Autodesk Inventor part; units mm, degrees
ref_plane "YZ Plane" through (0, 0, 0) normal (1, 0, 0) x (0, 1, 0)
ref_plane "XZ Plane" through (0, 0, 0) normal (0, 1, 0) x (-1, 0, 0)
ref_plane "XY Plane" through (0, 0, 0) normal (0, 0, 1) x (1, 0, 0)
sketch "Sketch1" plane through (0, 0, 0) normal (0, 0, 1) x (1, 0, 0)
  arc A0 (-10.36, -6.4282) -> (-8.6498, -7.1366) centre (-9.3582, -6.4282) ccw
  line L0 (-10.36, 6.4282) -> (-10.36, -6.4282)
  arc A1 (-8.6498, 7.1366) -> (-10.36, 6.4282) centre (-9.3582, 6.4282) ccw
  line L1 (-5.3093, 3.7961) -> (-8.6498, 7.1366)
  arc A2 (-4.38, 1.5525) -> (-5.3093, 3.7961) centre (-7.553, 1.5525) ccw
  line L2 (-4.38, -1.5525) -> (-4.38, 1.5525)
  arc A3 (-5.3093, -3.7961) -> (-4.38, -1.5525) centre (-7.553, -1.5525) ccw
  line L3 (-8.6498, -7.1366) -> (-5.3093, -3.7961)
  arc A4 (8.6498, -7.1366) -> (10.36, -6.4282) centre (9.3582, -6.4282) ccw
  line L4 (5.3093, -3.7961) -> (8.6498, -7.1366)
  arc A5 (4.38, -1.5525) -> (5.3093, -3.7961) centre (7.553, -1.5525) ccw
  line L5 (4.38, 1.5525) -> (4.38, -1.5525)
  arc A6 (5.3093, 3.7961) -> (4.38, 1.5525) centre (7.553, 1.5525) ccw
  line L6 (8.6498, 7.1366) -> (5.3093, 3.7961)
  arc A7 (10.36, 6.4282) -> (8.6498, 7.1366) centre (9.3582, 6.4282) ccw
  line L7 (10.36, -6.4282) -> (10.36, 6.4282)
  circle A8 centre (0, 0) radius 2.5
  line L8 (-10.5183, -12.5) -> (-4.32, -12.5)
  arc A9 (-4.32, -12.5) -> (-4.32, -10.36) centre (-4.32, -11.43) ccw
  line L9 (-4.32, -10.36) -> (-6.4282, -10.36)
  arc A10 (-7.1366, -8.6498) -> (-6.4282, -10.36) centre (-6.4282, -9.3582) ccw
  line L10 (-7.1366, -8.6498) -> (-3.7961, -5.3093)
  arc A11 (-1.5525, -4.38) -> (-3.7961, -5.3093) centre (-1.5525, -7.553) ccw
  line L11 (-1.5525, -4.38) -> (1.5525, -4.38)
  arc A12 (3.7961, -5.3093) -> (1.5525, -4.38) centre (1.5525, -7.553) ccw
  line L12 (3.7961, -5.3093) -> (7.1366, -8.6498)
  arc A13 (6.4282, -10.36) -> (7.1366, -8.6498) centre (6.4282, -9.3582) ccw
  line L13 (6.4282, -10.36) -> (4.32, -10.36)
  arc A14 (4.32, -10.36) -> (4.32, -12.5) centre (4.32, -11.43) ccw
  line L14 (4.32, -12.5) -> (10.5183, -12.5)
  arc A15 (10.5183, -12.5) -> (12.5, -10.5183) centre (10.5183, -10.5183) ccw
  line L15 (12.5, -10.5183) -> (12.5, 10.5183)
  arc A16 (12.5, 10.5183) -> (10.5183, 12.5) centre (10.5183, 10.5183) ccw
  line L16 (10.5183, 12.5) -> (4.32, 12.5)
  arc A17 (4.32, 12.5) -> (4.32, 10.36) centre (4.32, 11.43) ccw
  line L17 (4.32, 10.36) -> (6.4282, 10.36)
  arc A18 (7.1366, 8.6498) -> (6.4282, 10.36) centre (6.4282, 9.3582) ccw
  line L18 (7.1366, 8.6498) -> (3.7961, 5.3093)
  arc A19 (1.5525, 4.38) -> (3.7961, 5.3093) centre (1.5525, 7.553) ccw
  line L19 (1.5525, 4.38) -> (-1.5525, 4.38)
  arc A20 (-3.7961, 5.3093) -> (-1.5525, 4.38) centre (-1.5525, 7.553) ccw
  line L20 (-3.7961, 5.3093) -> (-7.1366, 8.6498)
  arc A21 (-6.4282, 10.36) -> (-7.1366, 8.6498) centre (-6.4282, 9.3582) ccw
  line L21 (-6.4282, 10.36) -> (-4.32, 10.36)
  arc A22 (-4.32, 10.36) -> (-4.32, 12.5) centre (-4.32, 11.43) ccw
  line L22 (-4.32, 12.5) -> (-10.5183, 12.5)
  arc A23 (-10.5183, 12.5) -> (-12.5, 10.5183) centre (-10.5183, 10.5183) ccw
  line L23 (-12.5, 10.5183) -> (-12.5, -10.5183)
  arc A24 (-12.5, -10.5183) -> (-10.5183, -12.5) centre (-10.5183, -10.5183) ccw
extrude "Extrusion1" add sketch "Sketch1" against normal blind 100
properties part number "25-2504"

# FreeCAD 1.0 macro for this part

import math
import FreeCAD as App
import Part
import Sketcher
from FreeCAD import Vector
Q = App.Units.Quantity

doc = App.newDocument("Part")
params = doc.addObject("Spreadsheet::Sheet", "Params")
for row, (alias, value) in enumerate([
    ("sketch1_width", "0.083 in"),
    ("sketch1_length", "0.186 in"),
    ("pad1_length", "3.9370079 in"),
], start=1):
    params.set(f"A{row}", alias)
    params.set(f"B{row}", "=" + value)
    params.setAlias(f"B{row}", alias)

body = doc.addObject("PartDesign::Body", "Body")

# Sketch on XY plane
sketch1 = body.newObject("Sketcher::SketchObject", "Sketch")
sketch1.AttachmentSupport = (doc.getObject("XY_Plane"), [""])
sketch1.MapMode = "FlatFace"
sketch1.addGeometry([
    Part.ArcOfCircle(Part.Circle(Vector(-10.5183, -10.5183, 0), Vector(0, 0, 1), 1.9817), math.radians(180), math.radians(270)),  # 0
    Part.LineSegment(Vector(-10.5183, -12.5, 0), Vector(-4.32, -12.5, 0)),  # 1
    Part.ArcOfCircle(Part.Circle(Vector(-4.32, -11.43, 0), Vector(0, 0, 1), 1.07), math.radians(-90), math.radians(90)),  # 2
    Part.LineSegment(Vector(-4.32, -10.36, 0), Vector(-6.4282, -10.36, 0)),  # 3
    Part.ArcOfCircle(Part.Circle(Vector(-6.4282, -9.3582, 0), Vector(0, 0, 1), 1.001829), math.radians(135), math.radians(270)),  # 4
    Part.LineSegment(Vector(-7.1366, -8.6498, 0), Vector(-3.7961, -5.3093, 0)),  # 5
    Part.ArcOfCircle(Part.Circle(Vector(-1.5525, -7.553, 0), Vector(0, 0, 1), 3.173), math.radians(90), math.radians(134.998723)),  # 6
    Part.LineSegment(Vector(-1.5525, -4.38, 0), Vector(1.5525, -4.38, 0)),  # 7
    Part.ArcOfCircle(Part.Circle(Vector(1.5525, -7.553, 0), Vector(0, 0, 1), 3.173), math.radians(45.001277), math.radians(90)),  # 8
    Part.LineSegment(Vector(3.7961, -5.3093, 0), Vector(7.1366, -8.6498, 0)),  # 9
    Part.ArcOfCircle(Part.Circle(Vector(6.4282, -9.3582, 0), Vector(0, 0, 1), 1.0018), math.radians(-90), math.radians(45)),  # 10
    Part.LineSegment(Vector(6.4282, -10.36, 0), Vector(4.32, -10.36, 0)),  # 11
    Part.ArcOfCircle(Part.Circle(Vector(4.32, -11.43, 0), Vector(0, 0, 1), 1.07), math.radians(90), math.radians(270)),  # 12
    Part.LineSegment(Vector(4.32, -12.5, 0), Vector(10.5183, -12.5, 0)),  # 13
    Part.ArcOfCircle(Part.Circle(Vector(10.5183, -10.5183, 0), Vector(0, 0, 1), 1.9817), math.radians(-90), math.radians(0)),  # 14
    Part.LineSegment(Vector(12.5, -10.5183, 0), Vector(12.5, 10.5183, 0)),  # 15
    Part.ArcOfCircle(Part.Circle(Vector(10.5183, 10.5183, 0), Vector(0, 0, 1), 1.9817), math.radians(0), math.radians(90)),  # 16
    Part.LineSegment(Vector(10.5183, 12.5, 0), Vector(4.32, 12.5, 0)),  # 17
    Part.ArcOfCircle(Part.Circle(Vector(4.32, 11.43, 0), Vector(0, 0, 1), 1.07), math.radians(90), math.radians(270)),  # 18
    Part.LineSegment(Vector(4.32, 10.36, 0), Vector(6.4282, 10.36, 0)),  # 19
    Part.ArcOfCircle(Part.Circle(Vector(6.4282, 9.3582, 0), Vector(0, 0, 1), 1.001829), math.radians(-45), math.radians(90)),  # 20
    Part.LineSegment(Vector(7.1366, 8.6498, 0), Vector(3.7961, 5.3093, 0)),  # 21
    Part.ArcOfCircle(Part.Circle(Vector(1.5525, 7.553, 0), Vector(0, 0, 1), 3.173), math.radians(-90), math.radians(-45.001277)),  # 22
    Part.LineSegment(Vector(1.5525, 4.38, 0), Vector(-1.5525, 4.38, 0)),  # 23
    Part.ArcOfCircle(Part.Circle(Vector(-1.5525, 7.553, 0), Vector(0, 0, 1), 3.173), math.radians(-134.998723), math.radians(-90)),  # 24
    Part.LineSegment(Vector(-3.7961, 5.3093, 0), Vector(-7.1366, 8.6498, 0)),  # 25
    Part.ArcOfCircle(Part.Circle(Vector(-6.4282, 9.3582, 0), Vector(0, 0, 1), 1.0018), math.radians(90), math.radians(225)),  # 26
    Part.LineSegment(Vector(-6.4282, 10.36, 0), Vector(-4.32, 10.36, 0)),  # 27
    Part.ArcOfCircle(Part.Circle(Vector(-4.32, 11.43, 0), Vector(0, 0, 1), 1.07), math.radians(-90), math.radians(90)),  # 28
    Part.LineSegment(Vector(-4.32, 12.5, 0), Vector(-10.5183, 12.5, 0)),  # 29
    Part.ArcOfCircle(Part.Circle(Vector(-10.5183, 10.5183, 0), Vector(0, 0, 1), 1.9817), math.radians(90), math.radians(180)),  # 30
    Part.LineSegment(Vector(-12.5, 10.5183, 0), Vector(-12.5, -10.5183, 0)),  # 31
    Part.ArcOfCircle(Part.Circle(Vector(9.3582, -6.4282, 0), Vector(0, 0, 1), 1.001829), math.radians(-135), math.radians(0)),  # 32
    Part.LineSegment(Vector(8.6498, -7.1366, 0), Vector(5.3093, -3.7961, 0)),  # 33
    Part.ArcOfCircle(Part.Circle(Vector(7.553, -1.5525, 0), Vector(0, 0, 1), 3.173), math.radians(180), math.radians(224.998723)),  # 34
    Part.LineSegment(Vector(4.38, -1.5525, 0), Vector(4.38, 1.5525, 0)),  # 35
    Part.ArcOfCircle(Part.Circle(Vector(7.553, 1.5525, 0), Vector(0, 0, 1), 3.173), math.radians(135.001277), math.radians(180)),  # 36
    Part.LineSegment(Vector(5.3093, 3.7961, 0), Vector(8.6498, 7.1366, 0)),  # 37
    Part.ArcOfCircle(Part.Circle(Vector(9.3582, 6.4282, 0), Vector(0, 0, 1), 1.0018), math.radians(0), math.radians(135)),  # 38
    Part.LineSegment(Vector(10.36, 6.4282, 0), Vector(10.36, -6.4282, 0)),  # 39
    Part.ArcOfCircle(Part.Circle(Vector(-9.3582, -6.4282, 0), Vector(0, 0, 1), 1.0018), math.radians(180), math.radians(315)),  # 40
    Part.LineSegment(Vector(-10.36, -6.4282, 0), Vector(-10.36, 6.4282, 0)),  # 41
    Part.ArcOfCircle(Part.Circle(Vector(-9.3582, 6.4282, 0), Vector(0, 0, 1), 1.001829), math.radians(45), math.radians(180)),  # 42
    Part.LineSegment(Vector(-8.6498, 7.1366, 0), Vector(-5.3093, 3.7961, 0)),  # 43
    Part.ArcOfCircle(Part.Circle(Vector(-7.553, 1.5525, 0), Vector(0, 0, 1), 3.173), math.radians(0), math.radians(44.998723)),  # 44
    Part.LineSegment(Vector(-4.38, 1.5525, 0), Vector(-4.38, -1.5525, 0)),  # 45
    Part.ArcOfCircle(Part.Circle(Vector(-7.553, -1.5525, 0), Vector(0, 0, 1), 3.173), math.radians(-44.998723), math.radians(0)),  # 46
    Part.LineSegment(Vector(-5.3093, -3.7961, 0), Vector(-8.6498, -7.1366, 0)),  # 47
    Part.Circle(Vector(0, 0, 0), Vector(0, 0, 1), 2.5),  # 48
], False)
sketch1.addConstraint([
    Sketcher.Constraint("Tangent", 0, 2, 1, 1),
    Sketcher.Constraint("Tangent", 1, 2, 2, 1),
    Sketcher.Constraint("Tangent", 2, 2, 3, 1),
    Sketcher.Constraint("Tangent", 3, 2, 4, 2),
    Sketcher.Constraint("Tangent", 4, 1, 5, 1),
    Sketcher.Constraint("Tangent", 5, 2, 6, 2),
    Sketcher.Constraint("Tangent", 6, 1, 7, 1),
    Sketcher.Constraint("Tangent", 7, 2, 8, 2),
    Sketcher.Constraint("Tangent", 8, 1, 9, 1),
    Sketcher.Constraint("Tangent", 9, 2, 10, 2),
    Sketcher.Constraint("Tangent", 10, 1, 11, 1),
    Sketcher.Constraint("Tangent", 11, 2, 12, 1),
    Sketcher.Constraint("Tangent", 12, 2, 13, 1),
    Sketcher.Constraint("Tangent", 13, 2, 14, 1),
    Sketcher.Constraint("Tangent", 14, 2, 15, 1),
    Sketcher.Constraint("Tangent", 15, 2, 16, 1),
    Sketcher.Constraint("Tangent", 16, 2, 17, 1),
    Sketcher.Constraint("Tangent", 17, 2, 18, 1),
    Sketcher.Constraint("Tangent", 18, 2, 19, 1),
    Sketcher.Constraint("Tangent", 19, 2, 20, 2),
    Sketcher.Constraint("Tangent", 20, 1, 21, 1),
    Sketcher.Constraint("Tangent", 21, 2, 22, 2),
    Sketcher.Constraint("Tangent", 22, 1, 23, 1),
    Sketcher.Constraint("Tangent", 23, 2, 24, 2),
    Sketcher.Constraint("Tangent", 24, 1, 25, 1),
    Sketcher.Constraint("Tangent", 25, 2, 26, 2),
    Sketcher.Constraint("Tangent", 26, 1, 27, 1),
    Sketcher.Constraint("Tangent", 27, 2, 28, 1),
    Sketcher.Constraint("Tangent", 28, 2, 29, 1),
    Sketcher.Constraint("Tangent", 29, 2, 30, 1),
    Sketcher.Constraint("Tangent", 30, 2, 31, 1),
    Sketcher.Constraint("Tangent", 31, 2, 0, 1),
    Sketcher.Constraint("Tangent", 32, 1, 33, 1),
    Sketcher.Constraint("Tangent", 33, 2, 34, 2),
    Sketcher.Constraint("Tangent", 34, 1, 35, 1),
    Sketcher.Constraint("Tangent", 35, 2, 36, 2),
    Sketcher.Constraint("Tangent", 36, 1, 37, 1),
    Sketcher.Constraint("Tangent", 37, 2, 38, 2),
    Sketcher.Constraint("Tangent", 38, 1, 39, 1),
    Sketcher.Constraint("Tangent", 39, 2, 32, 2),
    Sketcher.Constraint("Tangent", 40, 1, 41, 1),
    Sketcher.Constraint("Tangent", 41, 2, 42, 2),
    Sketcher.Constraint("Tangent", 42, 1, 43, 1),
    Sketcher.Constraint("Tangent", 43, 2, 44, 2),
    Sketcher.Constraint("Tangent", 44, 1, 45, 1),
    Sketcher.Constraint("Tangent", 45, 2, 46, 2),
    Sketcher.Constraint("Tangent", 46, 1, 47, 1),
    Sketcher.Constraint("Tangent", 47, 2, 40, 2),
    Sketcher.Constraint("Horizontal", 1),
    Sketcher.Constraint("Horizontal", 3),
    Sketcher.Constraint("Horizontal", 7),
    Sketcher.Constraint("Horizontal", 11),
    Sketcher.Constraint("Horizontal", 13),
    Sketcher.Constraint("Vertical", 15),
    Sketcher.Constraint("Horizontal", 17),
    Sketcher.Constraint("Horizontal", 19),
    Sketcher.Constraint("Horizontal", 23),
    Sketcher.Constraint("Horizontal", 27),
    Sketcher.Constraint("Horizontal", 29),
    Sketcher.Constraint("Vertical", 31),
    Sketcher.Constraint("Vertical", 35),
    Sketcher.Constraint("Vertical", 39),
    Sketcher.Constraint("Vertical", 41),
    Sketcher.Constraint("Vertical", 45),
    Sketcher.Constraint("Coincident", 48, 3, -1, 1),
    Sketcher.Constraint("Equal", 6, 8),
    Sketcher.Constraint("Equal", 4, 10),
    Sketcher.Constraint("Equal", 2, 12),
    Sketcher.Constraint("Equal", 0, 14),
    Sketcher.Constraint("Equal", 14, 16),
    Sketcher.Constraint("Equal", 12, 18),
    Sketcher.Constraint("Equal", 10, 20),
    Sketcher.Constraint("Equal", 8, 22),
    Sketcher.Constraint("Equal", 22, 24),
    Sketcher.Constraint("Equal", 20, 26),
    Sketcher.Constraint("Equal", 18, 28),
    Sketcher.Constraint("Equal", 16, 30),
    Sketcher.Constraint("Equal", 26, 32),
    Sketcher.Constraint("Equal", 24, 34),
    Sketcher.Constraint("Equal", 34, 36),
    Sketcher.Constraint("Equal", 32, 38),
    Sketcher.Constraint("Equal", 38, 40),
    Sketcher.Constraint("Equal", 40, 42),
    Sketcher.Constraint("Equal", 36, 44),
    Sketcher.Constraint("Equal", 44, 46),
    Sketcher.Constraint("Symmetric", 0, 3, 16, 3, -1, 1),
    Sketcher.Constraint("Symmetric", 6, 3, 22, 3, -1, 1),
    Sketcher.Constraint("Symmetric", 10, 3, 26, 3, -1, 1),
    Sketcher.Constraint("Symmetric", 38, 3, 40, 3, -1, 1),
    Sketcher.Constraint("Symmetric", 34, 3, 44, 3, -1, 1),
    Sketcher.Constraint("Symmetric", 4, 3, 10, 3, -2),
    Sketcher.Constraint("Symmetric", 21, 2, 24, 1, -2),
    Sketcher.Constraint("Symmetric", 37, 2, 42, 1, -2),
    Sketcher.Constraint("Symmetric", 33, 2, 46, 1, -2),
    Sketcher.Constraint("Perpendicular", 5, 9),
    Sketcher.Constraint("Perpendicular", 21, 25),
    Sketcher.Constraint("Parallel", 25, 33),
    Sketcher.Constraint("Vertical", 12, 3, 18, 3),
    Sketcher.Constraint("Vertical", 2, 3, 28, 3),
    Sketcher.Constraint("Equal", 3, 11),
    Sketcher.Constraint("Equal", 23, 35),
    Sketcher.Constraint("Equal", 25, 33),
    Sketcher.Constraint("Diameter", 48, 5.0),
    Sketcher.Constraint("DistanceX", 3, 2, 3, 1, Q("0.083 in")),
    Sketcher.Constraint("DistanceY", 2, 3, -1, 1, Q("0.45 in")),
    Sketcher.Constraint("Radius", 0, 1.9817),
    Sketcher.Constraint("Radius", 2, 1.07),
    Sketcher.Constraint("Radius", 4, 1.0018),
    Sketcher.Constraint("Radius", 6, 3.173),
    Sketcher.Constraint("Distance", 5, Q("0.186 in")),
    Sketcher.Constraint("DistanceX", 1, 1, 1, 2, 6.1983),
    Sketcher.Constraint("DistanceX", 7, 1, 7, 2, 3.105),
    Sketcher.Constraint("DistanceX", -1, 1, 32, 3, 9.3582),
])
sketch1.setExpression("Constraints[103]", "Params.sketch1_width")
sketch1.setExpression("Constraints[109]", "Params.sketch1_length")
pad1 = body.newObject("PartDesign::Pad", "Pad")
pad1.Profile = sketch1
pad1.setExpression("Length", "Params.pad1_length")
pad1.Reversed = True

doc.recompute()
